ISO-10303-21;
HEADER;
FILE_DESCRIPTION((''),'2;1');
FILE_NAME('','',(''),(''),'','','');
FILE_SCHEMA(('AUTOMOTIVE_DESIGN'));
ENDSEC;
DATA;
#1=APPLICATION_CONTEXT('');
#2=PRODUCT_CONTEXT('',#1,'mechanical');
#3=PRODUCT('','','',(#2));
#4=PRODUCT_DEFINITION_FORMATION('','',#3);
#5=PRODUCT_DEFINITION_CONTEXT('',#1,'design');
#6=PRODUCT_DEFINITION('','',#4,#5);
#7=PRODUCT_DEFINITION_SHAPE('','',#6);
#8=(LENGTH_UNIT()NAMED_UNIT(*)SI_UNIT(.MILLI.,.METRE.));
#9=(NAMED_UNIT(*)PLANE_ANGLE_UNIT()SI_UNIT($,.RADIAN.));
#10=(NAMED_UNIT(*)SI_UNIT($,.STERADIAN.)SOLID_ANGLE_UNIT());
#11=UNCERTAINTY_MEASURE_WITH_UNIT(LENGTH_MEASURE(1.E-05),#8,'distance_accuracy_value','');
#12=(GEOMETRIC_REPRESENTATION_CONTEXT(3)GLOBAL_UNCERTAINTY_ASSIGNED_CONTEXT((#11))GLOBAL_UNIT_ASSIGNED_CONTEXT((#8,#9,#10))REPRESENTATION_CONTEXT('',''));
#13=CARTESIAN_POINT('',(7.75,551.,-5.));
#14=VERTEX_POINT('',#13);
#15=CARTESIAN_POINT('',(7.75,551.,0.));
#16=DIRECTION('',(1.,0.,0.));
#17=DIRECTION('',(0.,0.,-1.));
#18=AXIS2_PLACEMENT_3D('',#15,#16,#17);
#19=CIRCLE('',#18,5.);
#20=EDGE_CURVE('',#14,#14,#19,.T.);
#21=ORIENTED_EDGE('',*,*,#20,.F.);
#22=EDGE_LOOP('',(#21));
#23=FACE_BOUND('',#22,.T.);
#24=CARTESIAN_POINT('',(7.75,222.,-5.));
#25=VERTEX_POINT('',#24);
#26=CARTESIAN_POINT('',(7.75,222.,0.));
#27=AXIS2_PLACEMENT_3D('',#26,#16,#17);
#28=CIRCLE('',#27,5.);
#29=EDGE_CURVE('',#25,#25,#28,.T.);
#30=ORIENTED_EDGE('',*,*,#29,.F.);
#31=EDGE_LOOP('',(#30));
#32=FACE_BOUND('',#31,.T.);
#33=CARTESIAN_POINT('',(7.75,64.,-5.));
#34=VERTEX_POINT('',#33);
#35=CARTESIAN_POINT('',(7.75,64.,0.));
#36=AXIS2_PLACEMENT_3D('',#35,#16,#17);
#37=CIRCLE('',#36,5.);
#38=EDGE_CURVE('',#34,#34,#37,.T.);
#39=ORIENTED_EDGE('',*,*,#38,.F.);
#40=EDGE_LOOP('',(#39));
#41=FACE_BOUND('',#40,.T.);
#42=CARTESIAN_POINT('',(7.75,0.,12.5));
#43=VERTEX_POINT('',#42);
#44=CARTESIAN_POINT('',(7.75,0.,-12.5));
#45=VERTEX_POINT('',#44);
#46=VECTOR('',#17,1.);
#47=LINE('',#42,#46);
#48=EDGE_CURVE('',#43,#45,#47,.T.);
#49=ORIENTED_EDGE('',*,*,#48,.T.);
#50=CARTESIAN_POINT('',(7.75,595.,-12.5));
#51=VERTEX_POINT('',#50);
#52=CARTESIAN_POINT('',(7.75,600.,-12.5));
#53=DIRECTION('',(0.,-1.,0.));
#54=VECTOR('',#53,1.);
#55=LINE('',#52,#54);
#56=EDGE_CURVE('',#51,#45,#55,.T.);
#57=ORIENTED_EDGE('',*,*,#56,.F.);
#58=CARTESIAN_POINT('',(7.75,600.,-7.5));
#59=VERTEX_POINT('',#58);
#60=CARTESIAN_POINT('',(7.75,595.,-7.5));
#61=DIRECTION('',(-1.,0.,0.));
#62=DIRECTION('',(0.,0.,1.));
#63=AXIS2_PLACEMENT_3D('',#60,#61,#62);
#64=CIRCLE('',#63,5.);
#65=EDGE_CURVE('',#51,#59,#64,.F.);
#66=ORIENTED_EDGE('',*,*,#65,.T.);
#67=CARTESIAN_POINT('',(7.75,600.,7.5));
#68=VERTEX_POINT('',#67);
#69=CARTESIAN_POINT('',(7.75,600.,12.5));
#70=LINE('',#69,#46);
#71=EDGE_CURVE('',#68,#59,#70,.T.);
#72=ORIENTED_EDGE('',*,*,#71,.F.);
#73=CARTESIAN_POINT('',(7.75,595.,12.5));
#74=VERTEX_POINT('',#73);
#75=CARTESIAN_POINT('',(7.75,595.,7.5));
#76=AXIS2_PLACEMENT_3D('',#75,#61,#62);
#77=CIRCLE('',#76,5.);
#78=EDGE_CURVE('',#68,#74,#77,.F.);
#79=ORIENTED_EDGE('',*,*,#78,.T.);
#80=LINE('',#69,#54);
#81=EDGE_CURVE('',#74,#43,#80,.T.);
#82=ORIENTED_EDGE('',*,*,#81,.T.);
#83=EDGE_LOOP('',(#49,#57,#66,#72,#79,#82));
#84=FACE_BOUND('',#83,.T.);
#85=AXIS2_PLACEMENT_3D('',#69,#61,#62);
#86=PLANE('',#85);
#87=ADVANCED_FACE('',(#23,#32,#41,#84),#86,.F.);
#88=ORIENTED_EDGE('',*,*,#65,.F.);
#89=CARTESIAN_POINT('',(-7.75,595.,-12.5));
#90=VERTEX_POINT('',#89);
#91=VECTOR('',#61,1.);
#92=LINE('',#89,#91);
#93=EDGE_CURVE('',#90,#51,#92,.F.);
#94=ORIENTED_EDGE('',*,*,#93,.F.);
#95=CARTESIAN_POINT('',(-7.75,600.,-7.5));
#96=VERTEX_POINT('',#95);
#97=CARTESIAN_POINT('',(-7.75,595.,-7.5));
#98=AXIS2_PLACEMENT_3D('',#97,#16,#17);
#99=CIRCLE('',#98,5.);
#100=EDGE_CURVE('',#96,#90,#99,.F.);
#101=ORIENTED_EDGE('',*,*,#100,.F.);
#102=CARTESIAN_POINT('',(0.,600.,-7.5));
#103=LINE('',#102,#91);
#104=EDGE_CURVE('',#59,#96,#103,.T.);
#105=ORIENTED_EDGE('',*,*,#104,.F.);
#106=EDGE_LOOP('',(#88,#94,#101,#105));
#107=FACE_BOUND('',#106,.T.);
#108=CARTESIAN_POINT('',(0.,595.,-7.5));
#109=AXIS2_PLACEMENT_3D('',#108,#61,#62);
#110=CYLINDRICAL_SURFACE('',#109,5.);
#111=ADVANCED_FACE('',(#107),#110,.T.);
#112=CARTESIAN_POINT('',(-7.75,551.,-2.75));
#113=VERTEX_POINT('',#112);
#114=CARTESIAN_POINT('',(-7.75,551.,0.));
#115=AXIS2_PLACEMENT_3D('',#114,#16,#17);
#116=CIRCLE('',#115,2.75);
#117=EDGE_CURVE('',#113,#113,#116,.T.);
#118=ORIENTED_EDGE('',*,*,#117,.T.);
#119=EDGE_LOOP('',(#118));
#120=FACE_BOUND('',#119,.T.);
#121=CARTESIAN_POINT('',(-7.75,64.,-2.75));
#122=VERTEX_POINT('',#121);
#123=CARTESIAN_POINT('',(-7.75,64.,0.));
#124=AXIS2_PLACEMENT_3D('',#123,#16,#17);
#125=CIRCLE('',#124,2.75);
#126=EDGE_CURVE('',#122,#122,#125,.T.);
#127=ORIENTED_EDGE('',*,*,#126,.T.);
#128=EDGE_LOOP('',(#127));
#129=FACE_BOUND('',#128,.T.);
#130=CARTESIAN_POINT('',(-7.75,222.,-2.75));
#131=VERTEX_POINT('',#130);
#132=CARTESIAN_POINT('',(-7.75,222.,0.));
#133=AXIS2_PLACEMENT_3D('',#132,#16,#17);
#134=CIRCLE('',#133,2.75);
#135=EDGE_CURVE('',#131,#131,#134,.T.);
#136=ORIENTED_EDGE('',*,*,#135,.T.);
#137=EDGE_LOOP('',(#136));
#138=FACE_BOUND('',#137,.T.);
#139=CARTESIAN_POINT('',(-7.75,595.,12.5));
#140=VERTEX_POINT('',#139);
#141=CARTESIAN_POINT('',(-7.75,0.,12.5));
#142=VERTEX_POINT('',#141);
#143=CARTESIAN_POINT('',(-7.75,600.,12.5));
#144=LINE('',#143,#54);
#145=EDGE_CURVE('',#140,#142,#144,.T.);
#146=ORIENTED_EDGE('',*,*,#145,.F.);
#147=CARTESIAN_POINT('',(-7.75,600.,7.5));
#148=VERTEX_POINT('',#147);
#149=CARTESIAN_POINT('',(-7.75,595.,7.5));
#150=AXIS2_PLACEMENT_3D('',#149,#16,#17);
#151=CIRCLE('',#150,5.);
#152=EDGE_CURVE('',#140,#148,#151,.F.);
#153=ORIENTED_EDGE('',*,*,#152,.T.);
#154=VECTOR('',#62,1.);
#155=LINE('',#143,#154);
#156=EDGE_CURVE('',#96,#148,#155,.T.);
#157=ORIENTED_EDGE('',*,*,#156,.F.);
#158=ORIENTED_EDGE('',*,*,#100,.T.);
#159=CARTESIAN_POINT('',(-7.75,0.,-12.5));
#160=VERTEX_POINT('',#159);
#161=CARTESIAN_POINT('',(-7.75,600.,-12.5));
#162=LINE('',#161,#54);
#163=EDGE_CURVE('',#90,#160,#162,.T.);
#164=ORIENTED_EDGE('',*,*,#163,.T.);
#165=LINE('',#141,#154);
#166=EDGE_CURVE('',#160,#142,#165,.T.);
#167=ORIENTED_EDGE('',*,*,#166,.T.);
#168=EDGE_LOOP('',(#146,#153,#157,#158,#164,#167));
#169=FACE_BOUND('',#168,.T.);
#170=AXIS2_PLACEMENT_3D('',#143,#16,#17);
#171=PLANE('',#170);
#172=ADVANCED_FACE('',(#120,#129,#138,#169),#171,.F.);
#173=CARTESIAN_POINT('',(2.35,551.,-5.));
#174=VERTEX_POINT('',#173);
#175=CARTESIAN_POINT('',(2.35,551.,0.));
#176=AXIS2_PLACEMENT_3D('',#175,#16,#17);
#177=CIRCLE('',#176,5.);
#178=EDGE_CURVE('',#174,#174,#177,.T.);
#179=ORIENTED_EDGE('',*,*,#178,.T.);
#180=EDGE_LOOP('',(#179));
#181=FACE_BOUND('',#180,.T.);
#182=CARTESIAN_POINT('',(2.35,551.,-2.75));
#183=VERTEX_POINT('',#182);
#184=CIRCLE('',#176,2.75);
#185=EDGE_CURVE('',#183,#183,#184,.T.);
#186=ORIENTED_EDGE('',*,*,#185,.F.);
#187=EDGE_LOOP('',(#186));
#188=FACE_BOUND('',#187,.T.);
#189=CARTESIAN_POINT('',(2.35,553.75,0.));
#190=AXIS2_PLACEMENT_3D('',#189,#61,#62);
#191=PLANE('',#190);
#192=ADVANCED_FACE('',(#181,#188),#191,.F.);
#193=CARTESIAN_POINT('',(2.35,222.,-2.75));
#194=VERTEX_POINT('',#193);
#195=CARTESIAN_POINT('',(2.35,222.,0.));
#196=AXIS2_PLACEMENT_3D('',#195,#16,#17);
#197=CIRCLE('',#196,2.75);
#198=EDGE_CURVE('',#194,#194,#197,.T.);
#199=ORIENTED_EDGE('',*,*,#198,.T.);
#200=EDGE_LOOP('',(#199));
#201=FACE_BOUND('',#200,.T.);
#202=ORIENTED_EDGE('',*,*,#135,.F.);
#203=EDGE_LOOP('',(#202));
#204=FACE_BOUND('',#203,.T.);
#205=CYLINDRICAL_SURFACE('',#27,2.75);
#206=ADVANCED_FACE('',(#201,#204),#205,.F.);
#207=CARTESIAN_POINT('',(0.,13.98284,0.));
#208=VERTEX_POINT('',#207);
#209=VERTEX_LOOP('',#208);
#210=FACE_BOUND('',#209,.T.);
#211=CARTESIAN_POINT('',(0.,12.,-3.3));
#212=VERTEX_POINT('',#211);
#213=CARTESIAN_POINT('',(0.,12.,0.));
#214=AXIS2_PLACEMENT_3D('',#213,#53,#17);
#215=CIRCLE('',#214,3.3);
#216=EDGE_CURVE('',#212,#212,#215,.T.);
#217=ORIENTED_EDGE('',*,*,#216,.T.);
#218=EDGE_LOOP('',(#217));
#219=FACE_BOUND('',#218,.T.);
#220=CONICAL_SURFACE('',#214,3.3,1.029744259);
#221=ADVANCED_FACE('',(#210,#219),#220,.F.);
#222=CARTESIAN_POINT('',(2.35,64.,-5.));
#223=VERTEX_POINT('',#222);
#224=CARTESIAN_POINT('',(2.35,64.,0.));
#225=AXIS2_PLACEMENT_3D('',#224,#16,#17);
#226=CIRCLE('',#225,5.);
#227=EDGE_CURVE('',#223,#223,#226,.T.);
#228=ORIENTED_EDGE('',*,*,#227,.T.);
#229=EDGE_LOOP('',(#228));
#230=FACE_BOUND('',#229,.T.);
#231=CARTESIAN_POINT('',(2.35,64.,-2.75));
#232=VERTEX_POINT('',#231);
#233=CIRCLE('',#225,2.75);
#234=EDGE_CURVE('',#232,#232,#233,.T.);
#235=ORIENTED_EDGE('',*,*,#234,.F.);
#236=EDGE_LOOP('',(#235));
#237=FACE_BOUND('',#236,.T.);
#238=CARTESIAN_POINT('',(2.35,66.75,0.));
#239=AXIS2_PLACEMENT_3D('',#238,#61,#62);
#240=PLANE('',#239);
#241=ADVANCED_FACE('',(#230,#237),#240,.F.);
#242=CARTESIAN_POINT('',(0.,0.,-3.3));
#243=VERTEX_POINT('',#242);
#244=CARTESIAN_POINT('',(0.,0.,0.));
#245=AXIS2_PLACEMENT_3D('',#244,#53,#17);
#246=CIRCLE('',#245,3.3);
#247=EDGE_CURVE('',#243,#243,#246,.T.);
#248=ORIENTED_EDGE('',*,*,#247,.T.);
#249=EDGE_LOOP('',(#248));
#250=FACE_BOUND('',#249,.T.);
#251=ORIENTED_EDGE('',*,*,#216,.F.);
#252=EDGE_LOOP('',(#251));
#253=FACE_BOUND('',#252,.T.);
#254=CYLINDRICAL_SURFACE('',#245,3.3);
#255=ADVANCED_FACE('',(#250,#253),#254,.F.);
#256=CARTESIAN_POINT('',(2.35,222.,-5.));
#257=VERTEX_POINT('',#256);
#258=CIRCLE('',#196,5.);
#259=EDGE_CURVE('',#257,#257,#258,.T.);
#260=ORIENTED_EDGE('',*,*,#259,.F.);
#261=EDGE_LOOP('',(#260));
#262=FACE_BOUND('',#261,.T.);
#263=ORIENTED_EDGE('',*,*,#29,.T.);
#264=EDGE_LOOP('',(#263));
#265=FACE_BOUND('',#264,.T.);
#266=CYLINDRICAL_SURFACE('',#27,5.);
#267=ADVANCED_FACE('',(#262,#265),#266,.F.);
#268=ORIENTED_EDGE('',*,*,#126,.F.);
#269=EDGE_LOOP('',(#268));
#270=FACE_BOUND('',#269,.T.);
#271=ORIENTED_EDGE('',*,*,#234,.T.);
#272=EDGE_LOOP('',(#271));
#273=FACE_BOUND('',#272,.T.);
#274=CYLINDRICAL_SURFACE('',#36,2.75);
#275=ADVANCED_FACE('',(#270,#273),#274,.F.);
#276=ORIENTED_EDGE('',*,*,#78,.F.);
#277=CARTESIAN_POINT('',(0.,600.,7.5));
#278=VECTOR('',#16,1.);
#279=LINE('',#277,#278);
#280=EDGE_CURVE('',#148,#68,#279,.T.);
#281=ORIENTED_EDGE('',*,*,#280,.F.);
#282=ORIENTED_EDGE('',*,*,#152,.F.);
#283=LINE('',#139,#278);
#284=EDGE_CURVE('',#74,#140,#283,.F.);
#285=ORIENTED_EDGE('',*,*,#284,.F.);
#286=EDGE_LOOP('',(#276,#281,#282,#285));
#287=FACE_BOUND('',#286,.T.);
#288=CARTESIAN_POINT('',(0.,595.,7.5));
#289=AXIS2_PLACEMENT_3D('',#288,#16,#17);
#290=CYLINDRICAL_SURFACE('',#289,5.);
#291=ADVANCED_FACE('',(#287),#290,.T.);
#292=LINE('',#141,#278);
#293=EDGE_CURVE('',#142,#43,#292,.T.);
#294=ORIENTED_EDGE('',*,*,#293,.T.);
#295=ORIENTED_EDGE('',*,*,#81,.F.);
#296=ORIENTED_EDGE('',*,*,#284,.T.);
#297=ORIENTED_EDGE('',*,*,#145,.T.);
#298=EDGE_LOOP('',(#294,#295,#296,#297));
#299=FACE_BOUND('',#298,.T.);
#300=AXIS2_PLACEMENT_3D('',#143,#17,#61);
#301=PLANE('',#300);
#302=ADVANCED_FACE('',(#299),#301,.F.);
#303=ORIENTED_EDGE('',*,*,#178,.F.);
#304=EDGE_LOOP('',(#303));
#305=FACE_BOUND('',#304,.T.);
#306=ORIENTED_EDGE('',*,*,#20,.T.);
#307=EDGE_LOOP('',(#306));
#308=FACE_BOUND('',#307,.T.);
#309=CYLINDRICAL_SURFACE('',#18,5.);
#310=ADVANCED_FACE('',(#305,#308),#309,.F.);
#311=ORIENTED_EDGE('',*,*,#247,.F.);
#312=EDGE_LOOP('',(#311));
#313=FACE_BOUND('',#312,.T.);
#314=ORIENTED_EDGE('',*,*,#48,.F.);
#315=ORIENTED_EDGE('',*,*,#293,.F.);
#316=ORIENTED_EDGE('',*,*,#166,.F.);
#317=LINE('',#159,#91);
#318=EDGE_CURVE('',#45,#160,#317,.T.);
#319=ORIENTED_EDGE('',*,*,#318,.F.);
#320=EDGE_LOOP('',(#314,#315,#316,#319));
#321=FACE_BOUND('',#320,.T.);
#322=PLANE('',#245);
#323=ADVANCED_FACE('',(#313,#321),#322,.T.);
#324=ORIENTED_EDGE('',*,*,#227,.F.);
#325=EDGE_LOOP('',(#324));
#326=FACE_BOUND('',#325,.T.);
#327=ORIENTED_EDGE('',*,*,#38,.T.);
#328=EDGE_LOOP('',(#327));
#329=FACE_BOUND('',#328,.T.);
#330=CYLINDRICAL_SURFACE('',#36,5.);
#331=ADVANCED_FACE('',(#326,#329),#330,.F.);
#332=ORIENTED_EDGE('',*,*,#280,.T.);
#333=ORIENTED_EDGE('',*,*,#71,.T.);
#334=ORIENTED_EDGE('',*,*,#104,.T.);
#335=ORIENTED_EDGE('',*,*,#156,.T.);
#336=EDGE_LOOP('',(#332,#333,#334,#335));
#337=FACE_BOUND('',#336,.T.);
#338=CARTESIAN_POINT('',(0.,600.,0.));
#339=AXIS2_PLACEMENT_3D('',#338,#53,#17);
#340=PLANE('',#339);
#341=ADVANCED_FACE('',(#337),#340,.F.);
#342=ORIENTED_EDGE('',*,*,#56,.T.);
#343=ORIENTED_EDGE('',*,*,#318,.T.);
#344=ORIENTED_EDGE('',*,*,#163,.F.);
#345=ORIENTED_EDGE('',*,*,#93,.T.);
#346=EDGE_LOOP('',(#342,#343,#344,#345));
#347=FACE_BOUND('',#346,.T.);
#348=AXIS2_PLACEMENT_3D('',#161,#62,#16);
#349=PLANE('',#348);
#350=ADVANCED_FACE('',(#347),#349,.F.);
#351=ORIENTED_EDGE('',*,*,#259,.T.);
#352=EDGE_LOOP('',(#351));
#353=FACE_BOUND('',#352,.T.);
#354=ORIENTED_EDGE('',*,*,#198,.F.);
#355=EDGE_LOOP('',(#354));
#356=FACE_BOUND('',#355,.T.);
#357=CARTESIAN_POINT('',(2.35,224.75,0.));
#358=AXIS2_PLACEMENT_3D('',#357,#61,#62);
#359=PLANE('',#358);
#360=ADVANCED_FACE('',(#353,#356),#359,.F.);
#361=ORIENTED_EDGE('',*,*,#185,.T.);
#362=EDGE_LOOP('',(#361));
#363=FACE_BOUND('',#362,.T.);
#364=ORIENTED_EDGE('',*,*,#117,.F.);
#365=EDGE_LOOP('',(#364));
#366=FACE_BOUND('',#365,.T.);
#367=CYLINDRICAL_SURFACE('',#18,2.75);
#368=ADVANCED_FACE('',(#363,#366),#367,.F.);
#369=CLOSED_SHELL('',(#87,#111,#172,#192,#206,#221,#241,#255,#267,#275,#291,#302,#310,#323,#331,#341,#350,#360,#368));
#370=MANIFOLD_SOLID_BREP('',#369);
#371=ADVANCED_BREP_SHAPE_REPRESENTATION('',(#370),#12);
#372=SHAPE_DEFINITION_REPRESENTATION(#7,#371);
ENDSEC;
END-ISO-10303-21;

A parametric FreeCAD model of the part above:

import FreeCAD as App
import Part
import Sketcher
from FreeCAD import Vector
Q = App.Units.Quantity


def edges_at(feature, points):
    """Names of the edges that pass closest to the given points."""
    edges = feature.Shape.Edges
    near = lambda p: min(range(len(edges)), key=lambda i: edges[i].distToShape(Part.Vertex(*p))[0])
    return sorted({f"Edge{near(p) + 1}" for p in points})


def add_polygon(sketch, points):
    """Adds a closed chain of lines whose ends are joined by coincident constraints."""
    first, n = sketch.GeometryCount, len(points)
    for a, b in zip(points, points[1:] + points[:1]):
        sketch.addGeometry(Part.LineSegment(App.Vector(*a, 0), App.Vector(*b, 0)), False)
    for i in range(n):
        sketch.addConstraint(Sketcher.Constraint("Coincident", first + i, 2, first + (i + 1) % n, 1))

doc = App.newDocument("Part")
body = doc.addObject("PartDesign::Body", "Body")

# Sketch on XZ plane
sketch1 = body.newObject("Sketcher::SketchObject", "Sketch")
sketch1.AttachmentSupport = (doc.getObject("XZ_Plane"), [""])
sketch1.MapMode = "FlatFace"
add_polygon(sketch1, [(-8, -12), (-8, 12), (8, 12), (8, -12)])  # lines 0-3
sketch1.addConstraint(Sketcher.Constraint("Vertical", 0))
sketch1.addConstraint(Sketcher.Constraint("Horizontal", 1))
sketch1.addConstraint(Sketcher.Constraint("Vertical", 2))
sketch1.addConstraint(Sketcher.Constraint("Horizontal", 3))
sketch1.addConstraint(Sketcher.Constraint("Symmetric", 0, 2, 2, 2, -1, 1))
sketch1.addConstraint(Sketcher.Constraint("DistanceY", 0, 1, 0, 2, Q("25 mm")))
sketch1.addConstraint(Sketcher.Constraint("DistanceX", 1, 1, 1, 2, Q("15.5 mm")))
pad1 = body.newObject("PartDesign::Pad", "Pad")
pad1.Profile = sketch1
pad1.Length = 600
pad1.Reversed = True
doc.recompute()

fillet = body.newObject("PartDesign::Fillet", "Fillet")
fillet.Base = (pad1, edges_at(pad1, [(0, 600, 12.5), (0, 600, -12.5)]))
fillet.Radius = 5

# Sketch on XZ plane
sketch2 = body.newObject("Sketcher::SketchObject", "Sketch001")
sketch2.AttachmentSupport = (doc.getObject("XZ_Plane"), [""])
sketch2.MapMode = "FlatFace"
sketch2.addGeometry(Part.Circle(Vector(0, 0, 0), Vector(0, 0, 1), 3.3), False)
sketch2.addConstraint(Sketcher.Constraint("Coincident", 0, 3, -1, 1))
sketch2.addConstraint(Sketcher.Constraint("Diameter", 0, Q("6.6 mm")))
doc.recompute()
hole = body.newObject("PartDesign::Hole", "Hole")
hole.Profile = sketch2
hole.ThreadType = "None"
hole.Diameter = 6.6
hole.DepthType = "Dimension"
hole.Depth = 12
hole.DrillPoint = "Angled"
hole.DrillPointAngle = 118

# Sketch on YZ plane
sketch3 = body.newObject("Sketcher::SketchObject", "Sketch002")
sketch3.AttachmentSupport = (doc.getObject("YZ_Plane"), [""])
sketch3.MapMode = "FlatFace"
sketch3.AttachmentOffset = App.Placement(Vector(0, 0, 7.75), App.Rotation())
sketch3.addGeometry(Part.Circle(Vector(222, 0, 0), Vector(0, 0, 1), 2.8), False)
sketch3.addGeometry(Part.Circle(Vector(551, 0, 0), Vector(0, 0, 1), 2.8), False)
sketch3.addGeometry(Part.Circle(Vector(64, 0, 0), Vector(0, 0, 1), 2.8), False)
sketch3.addConstraint(Sketcher.Constraint("Equal", 0, 1))
sketch3.addConstraint(Sketcher.Constraint("Equal", 1, 2))
sketch3.addConstraint(Sketcher.Constraint("PointOnObject", 0, 3, -1))
sketch3.addConstraint(Sketcher.Constraint("PointOnObject", 1, 3, -1))
sketch3.addConstraint(Sketcher.Constraint("PointOnObject", 2, 3, -1))
sketch3.addConstraint(Sketcher.Constraint("Diameter", 0, Q("5.5 mm")))
sketch3.addConstraint(Sketcher.Constraint("DistanceX", -1, 1, 0, 3, Q("222 mm")))
sketch3.addConstraint(Sketcher.Constraint("DistanceX", -1, 1, 1, 3, Q("551 mm")))
sketch3.addConstraint(Sketcher.Constraint("DistanceX", -1, 1, 2, 3, Q("64 mm")))
doc.recompute()
hole2 = body.newObject("PartDesign::Hole", "Hole001")
hole2.Profile = sketch3
hole2.ThreadType = "None"
hole2.Diameter = 5.5
hole2.DepthType = "ThroughAll"
hole2.HoleCutType = "Counterbore"
hole2.HoleCutDiameter = 10
hole2.HoleCutDepth = 5.4

doc.recompute()
